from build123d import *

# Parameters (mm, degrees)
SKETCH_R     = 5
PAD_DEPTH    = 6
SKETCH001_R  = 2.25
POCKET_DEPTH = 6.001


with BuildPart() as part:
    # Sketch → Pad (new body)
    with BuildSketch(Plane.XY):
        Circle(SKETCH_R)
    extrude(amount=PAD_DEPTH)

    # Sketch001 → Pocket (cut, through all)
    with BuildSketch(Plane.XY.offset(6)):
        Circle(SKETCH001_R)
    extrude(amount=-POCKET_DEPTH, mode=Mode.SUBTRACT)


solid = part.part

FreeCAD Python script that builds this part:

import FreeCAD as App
import Part
import Sketcher
Q = App.Units.Quantity

doc = App.newDocument("Part")
params = doc.addObject("Spreadsheet::Sheet", "Params")
for row, (alias, value) in enumerate([
    ("sketch1_diameter", "10 mm"),
    ("pad1_length", "6 mm"),
    ("sketch2_diameter", "4.5 mm"),
], start=1):
    params.set(f"A{row}", alias)
    params.set(f"B{row}", "=" + value)
    params.setAlias(f"B{row}", alias)

body = doc.addObject("PartDesign::Body", "Body")

sketch1 = body.newObject("Sketcher::SketchObject", "Sketch")
sketch1.AttachmentSupport = (doc.getObject("XY_Plane"), [""])
sketch1.MapMode = "FlatFace"
sketch1.addGeometry(Part.Circle(App.Vector(0, 0, 0), App.Vector(0, 0, 1), 5), False)
sketch1.addConstraint(Sketcher.Constraint("Coincident", 0, 3, -1, 1))
sketch1.addConstraint(Sketcher.Constraint("Diameter", 0, Q("10 mm")))
sketch1.setExpression("Constraints[1]", "Params.sketch1_diameter")
pad1 = body.newObject("PartDesign::Pad", "Pad")
pad1.Profile = sketch1
pad1.setExpression("Length", "Params.pad1_length")

sketch2 = body.newObject("Sketcher::SketchObject", "Sketch001")
sketch2.AttachmentSupport = (doc.getObject("XY_Plane"), [""])
sketch2.MapMode = "FlatFace"
sketch2.AttachmentOffset = App.Placement(App.Vector(0, 0, 6), App.Rotation())
sketch2.addGeometry(Part.Circle(App.Vector(0, 0, 0), App.Vector(0, 0, 1), 2.25), False)
sketch2.addConstraint(Sketcher.Constraint("Coincident", 0, 3, -1, 1))
sketch2.addConstraint(Sketcher.Constraint("Diameter", 0, Q("4.5 mm")))
sketch2.setExpression("Constraints[1]", "Params.sketch2_diameter")
pocket1 = body.newObject("PartDesign::Pocket", "Pocket")
pocket1.Profile = sketch2
pocket1.Type = "ThroughAll"

doc.recompute()
